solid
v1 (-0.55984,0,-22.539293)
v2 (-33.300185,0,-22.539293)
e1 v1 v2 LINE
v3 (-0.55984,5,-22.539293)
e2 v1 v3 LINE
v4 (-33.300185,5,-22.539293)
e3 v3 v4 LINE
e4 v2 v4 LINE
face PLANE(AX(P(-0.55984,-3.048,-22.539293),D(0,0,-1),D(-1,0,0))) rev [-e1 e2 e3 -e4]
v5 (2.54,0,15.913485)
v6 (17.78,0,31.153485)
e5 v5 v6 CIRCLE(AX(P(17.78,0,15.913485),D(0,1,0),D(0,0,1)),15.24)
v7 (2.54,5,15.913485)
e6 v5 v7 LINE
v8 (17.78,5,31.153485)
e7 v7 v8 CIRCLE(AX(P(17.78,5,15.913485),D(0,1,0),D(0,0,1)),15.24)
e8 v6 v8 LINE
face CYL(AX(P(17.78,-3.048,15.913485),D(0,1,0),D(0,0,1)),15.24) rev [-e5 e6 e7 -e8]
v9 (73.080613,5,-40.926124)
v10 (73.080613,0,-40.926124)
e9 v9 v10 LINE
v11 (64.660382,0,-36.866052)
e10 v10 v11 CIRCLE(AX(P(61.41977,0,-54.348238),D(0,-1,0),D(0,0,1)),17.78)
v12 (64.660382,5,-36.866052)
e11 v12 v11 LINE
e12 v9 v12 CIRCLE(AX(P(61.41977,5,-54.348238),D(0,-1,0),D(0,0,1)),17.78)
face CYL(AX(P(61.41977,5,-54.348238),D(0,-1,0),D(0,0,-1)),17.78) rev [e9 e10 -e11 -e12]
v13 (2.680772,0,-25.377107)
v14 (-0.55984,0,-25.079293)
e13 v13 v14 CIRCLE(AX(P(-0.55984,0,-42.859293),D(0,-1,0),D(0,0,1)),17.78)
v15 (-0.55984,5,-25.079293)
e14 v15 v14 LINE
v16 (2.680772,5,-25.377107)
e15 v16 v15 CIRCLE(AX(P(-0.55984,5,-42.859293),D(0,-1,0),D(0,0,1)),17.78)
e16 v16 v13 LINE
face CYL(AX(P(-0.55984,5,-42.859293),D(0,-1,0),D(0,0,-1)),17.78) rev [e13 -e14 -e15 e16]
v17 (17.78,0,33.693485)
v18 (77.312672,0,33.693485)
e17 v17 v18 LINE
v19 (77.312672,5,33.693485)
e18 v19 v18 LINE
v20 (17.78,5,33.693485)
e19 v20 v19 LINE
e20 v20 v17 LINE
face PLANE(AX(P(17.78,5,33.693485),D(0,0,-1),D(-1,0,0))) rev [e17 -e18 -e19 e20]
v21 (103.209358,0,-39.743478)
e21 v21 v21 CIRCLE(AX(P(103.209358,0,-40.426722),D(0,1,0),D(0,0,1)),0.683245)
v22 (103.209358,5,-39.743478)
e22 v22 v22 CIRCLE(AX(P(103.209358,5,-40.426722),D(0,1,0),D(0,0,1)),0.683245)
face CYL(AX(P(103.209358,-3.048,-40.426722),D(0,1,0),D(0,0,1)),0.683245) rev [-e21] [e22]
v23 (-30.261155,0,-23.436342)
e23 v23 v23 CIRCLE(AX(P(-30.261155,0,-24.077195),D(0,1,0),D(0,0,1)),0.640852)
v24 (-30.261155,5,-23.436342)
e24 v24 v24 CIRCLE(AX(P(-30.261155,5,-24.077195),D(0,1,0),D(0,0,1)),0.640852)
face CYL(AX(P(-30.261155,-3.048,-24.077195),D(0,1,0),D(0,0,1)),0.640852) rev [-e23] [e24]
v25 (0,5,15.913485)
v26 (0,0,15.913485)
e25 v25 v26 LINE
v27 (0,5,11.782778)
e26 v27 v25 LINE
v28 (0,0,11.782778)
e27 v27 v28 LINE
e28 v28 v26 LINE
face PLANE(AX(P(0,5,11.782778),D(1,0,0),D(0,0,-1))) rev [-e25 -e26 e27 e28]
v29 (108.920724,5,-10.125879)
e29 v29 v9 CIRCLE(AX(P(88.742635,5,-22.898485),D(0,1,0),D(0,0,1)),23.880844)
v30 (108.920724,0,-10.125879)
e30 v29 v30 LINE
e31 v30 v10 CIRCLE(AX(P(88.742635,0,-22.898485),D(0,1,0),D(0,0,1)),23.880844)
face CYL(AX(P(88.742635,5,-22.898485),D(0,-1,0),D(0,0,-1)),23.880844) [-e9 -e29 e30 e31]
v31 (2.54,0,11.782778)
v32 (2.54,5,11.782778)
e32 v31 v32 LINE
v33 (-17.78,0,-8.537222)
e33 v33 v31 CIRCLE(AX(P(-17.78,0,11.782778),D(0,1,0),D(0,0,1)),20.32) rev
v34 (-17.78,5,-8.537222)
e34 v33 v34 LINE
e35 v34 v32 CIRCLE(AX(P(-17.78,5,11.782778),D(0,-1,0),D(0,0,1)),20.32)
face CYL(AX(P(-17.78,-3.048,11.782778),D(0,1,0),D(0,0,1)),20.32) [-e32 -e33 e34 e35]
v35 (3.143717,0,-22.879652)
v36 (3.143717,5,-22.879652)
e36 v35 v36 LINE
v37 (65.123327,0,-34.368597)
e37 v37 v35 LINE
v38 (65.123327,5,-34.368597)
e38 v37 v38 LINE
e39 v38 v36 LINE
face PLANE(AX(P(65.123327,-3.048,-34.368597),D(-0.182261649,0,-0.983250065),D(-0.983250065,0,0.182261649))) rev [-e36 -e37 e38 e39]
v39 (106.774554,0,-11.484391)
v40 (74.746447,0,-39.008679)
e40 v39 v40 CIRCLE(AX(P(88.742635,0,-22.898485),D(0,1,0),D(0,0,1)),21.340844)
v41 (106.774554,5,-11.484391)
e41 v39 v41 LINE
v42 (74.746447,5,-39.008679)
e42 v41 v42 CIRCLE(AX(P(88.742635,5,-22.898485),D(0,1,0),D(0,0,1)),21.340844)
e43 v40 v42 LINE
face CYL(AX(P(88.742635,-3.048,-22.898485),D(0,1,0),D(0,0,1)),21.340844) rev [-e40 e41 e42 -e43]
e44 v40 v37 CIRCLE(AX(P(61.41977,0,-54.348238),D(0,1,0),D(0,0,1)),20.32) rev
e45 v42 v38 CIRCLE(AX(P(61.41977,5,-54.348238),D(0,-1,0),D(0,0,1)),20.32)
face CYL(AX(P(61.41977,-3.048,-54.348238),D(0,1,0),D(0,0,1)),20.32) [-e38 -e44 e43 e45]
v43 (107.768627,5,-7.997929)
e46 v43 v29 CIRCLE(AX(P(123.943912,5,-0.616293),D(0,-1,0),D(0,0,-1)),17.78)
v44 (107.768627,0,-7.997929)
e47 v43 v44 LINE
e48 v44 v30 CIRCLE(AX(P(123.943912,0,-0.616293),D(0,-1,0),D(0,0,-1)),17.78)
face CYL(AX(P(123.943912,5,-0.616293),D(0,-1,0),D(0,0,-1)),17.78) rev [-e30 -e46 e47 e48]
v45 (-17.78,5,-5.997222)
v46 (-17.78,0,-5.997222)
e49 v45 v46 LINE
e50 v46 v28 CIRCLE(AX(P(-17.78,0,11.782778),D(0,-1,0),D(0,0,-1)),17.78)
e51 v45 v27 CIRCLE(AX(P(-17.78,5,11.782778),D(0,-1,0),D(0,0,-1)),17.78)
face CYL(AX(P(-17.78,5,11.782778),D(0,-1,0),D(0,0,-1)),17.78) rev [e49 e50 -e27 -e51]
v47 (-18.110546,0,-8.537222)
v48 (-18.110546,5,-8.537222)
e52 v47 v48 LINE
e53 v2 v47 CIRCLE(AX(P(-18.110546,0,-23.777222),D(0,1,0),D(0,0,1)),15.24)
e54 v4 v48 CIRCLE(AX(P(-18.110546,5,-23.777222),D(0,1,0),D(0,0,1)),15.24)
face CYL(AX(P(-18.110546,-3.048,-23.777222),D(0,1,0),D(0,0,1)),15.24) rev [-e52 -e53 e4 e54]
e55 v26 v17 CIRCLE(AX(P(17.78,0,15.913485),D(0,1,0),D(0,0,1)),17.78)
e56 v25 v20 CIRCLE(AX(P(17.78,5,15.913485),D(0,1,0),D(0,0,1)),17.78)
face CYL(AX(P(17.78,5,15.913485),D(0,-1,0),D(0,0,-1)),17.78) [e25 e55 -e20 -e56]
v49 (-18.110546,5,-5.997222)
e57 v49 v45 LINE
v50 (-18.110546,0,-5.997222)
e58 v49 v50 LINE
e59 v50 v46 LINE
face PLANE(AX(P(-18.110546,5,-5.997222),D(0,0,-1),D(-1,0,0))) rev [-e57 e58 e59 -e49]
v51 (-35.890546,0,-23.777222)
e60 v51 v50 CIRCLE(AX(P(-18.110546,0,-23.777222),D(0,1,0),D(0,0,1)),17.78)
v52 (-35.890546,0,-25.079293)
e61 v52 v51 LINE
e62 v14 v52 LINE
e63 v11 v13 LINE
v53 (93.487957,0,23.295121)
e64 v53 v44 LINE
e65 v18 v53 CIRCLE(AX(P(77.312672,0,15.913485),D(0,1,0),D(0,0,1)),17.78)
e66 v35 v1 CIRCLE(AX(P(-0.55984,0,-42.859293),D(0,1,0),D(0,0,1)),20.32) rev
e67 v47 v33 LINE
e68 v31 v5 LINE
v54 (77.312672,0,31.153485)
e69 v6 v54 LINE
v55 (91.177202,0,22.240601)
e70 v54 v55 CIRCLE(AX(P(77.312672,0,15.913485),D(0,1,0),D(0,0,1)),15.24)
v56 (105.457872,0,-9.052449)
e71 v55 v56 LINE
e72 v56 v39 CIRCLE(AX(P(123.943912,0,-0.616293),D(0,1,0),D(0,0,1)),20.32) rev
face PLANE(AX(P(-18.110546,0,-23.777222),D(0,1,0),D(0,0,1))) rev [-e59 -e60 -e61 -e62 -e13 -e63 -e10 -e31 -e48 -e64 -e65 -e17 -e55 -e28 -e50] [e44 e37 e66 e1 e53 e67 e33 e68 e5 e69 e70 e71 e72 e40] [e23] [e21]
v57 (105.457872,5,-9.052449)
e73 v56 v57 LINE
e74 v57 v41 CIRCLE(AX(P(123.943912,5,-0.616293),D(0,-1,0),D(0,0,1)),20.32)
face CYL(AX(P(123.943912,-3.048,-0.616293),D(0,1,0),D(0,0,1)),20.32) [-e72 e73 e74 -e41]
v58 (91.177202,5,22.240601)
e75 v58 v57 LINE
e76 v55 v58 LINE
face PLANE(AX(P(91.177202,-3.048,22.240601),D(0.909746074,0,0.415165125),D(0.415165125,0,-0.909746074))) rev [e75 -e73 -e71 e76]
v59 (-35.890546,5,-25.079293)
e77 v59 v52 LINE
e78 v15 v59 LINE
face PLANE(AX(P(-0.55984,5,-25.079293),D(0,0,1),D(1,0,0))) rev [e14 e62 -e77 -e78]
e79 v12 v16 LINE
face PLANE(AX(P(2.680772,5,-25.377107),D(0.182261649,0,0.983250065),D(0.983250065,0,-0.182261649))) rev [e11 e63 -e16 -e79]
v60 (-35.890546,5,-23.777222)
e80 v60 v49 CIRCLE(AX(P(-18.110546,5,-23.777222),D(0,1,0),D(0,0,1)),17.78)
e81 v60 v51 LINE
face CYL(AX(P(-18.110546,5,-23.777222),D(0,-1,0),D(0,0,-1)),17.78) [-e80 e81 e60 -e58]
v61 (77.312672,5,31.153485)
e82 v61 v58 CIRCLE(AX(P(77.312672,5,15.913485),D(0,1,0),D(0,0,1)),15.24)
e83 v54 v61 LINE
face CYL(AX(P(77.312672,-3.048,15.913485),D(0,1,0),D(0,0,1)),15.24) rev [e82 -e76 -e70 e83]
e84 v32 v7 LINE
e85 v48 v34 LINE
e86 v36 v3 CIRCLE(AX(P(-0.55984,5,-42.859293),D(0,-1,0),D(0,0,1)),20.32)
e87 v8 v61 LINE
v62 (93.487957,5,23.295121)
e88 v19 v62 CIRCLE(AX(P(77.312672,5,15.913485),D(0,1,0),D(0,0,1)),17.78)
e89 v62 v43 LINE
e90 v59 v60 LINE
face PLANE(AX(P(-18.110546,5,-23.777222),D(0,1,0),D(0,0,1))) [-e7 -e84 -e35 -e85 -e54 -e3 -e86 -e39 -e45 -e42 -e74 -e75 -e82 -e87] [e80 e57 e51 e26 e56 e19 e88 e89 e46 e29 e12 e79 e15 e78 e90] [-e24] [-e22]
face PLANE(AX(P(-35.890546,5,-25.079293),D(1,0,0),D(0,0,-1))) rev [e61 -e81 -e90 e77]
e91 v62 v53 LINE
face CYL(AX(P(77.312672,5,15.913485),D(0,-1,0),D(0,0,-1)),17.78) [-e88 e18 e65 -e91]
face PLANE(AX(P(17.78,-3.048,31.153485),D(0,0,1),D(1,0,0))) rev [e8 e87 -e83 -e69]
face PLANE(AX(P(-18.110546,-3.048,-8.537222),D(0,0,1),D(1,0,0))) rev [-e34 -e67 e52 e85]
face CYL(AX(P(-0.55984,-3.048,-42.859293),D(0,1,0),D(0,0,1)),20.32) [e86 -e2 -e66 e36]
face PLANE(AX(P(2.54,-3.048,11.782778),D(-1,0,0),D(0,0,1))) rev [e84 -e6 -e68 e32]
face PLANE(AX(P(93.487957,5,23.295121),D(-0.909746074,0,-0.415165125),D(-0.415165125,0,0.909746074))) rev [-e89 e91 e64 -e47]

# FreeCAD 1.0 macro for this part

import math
import FreeCAD as App
import Part
import Sketcher
from FreeCAD import Vector
Q = App.Units.Quantity

doc = App.newDocument("Part")
params = doc.addObject("Spreadsheet::Sheet", "Params")
for row, (alias, value) in enumerate([
    ("sketch1_radius", "0.7 in"),
    ("pad1_length", "5 mm"),
    ("sketch2_radius", "0.8 in"),
    ("sketch2_radius2", "0.6 in"),
    ("sketch2_radius3", "0.6 in"),
    ("sketch2_radius4", "0.8 in"),
    ("sketch2_radius5", "0.8 in"),
    ("pocket1_length", "8.048 mm"),
    ("pocket2_length", "8.048 mm"),
], start=1):
    params.set(f"A{row}", alias)
    params.set(f"B{row}", "=" + value)
    params.setAlias(f"B{row}", alias)

body = doc.addObject("PartDesign::Body", "Body")

# Sketch on XZ plane
sketch1 = body.newObject("Sketcher::SketchObject", "Sketch")
sketch1.AttachmentSupport = (doc.getObject("XZ_Plane"), [""])
sketch1.MapMode = "FlatFace"
sketch1.addGeometry([
    Part.LineSegment(Vector(-0.56, -25.08, 0), Vector(-35.89, -25.08, 0)),  # 0
    Part.LineSegment(Vector(-35.89, -25.08, 0), Vector(-35.89, -23.78, 0)),  # 1
    Part.ArcOfCircle(Part.Circle(Vector(-18.11, -23.78, 0), Vector(0, 0, 1), 17.78), math.radians(90), math.radians(180)),  # 2
    Part.LineSegment(Vector(-18.11, -6, 0), Vector(-17.78, -6, 0)),  # 3
    Part.ArcOfCircle(Part.Circle(Vector(-17.78, 11.78, 0), Vector(0, 0, 1), 17.78), math.radians(-90), math.radians(0)),  # 4
    Part.LineSegment(Vector(0, 11.78, 0), Vector(0, 15.91, 0)),  # 5
    Part.ArcOfCircle(Part.Circle(Vector(17.78, 15.91, 0), Vector(0, 0, 1), 17.78), math.radians(90), math.radians(180)),  # 6
    Part.LineSegment(Vector(17.78, 33.69, 0), Vector(77.31, 33.69, 0)),  # 7
    Part.ArcOfCircle(Part.Circle(Vector(77.31, 15.91, 0), Vector(0, 0, 1), 17.78), math.radians(25), math.radians(90)),  # 8
    Part.LineSegment(Vector(93.49, 23.3, 0), Vector(107.77, -8, 0)),  # 9
    Part.ArcOfCircle(Part.Circle(Vector(123.94, -0.62, 0), Vector(0, 0, 1), 17.78), math.radians(-155.47), math.radians(-147.67)),  # 10
    Part.ArcOfCircle(Part.Circle(Vector(88.74, -22.9, 0), Vector(0, 0, 1), 23.88), math.radians(-131), math.radians(32)),  # 11
    Part.ArcOfCircle(Part.Circle(Vector(61.42, -54.35, 0), Vector(0, 0, 1), 17.78), math.radians(49), math.radians(79)),  # 12
    Part.LineSegment(Vector(64.66, -36.87, 0), Vector(2.68, -25.38, 0)),  # 13
    Part.ArcOfCircle(Part.Circle(Vector(-0.56, -42.86, 0), Vector(0, 0, 1), 17.78), math.radians(79.5), math.radians(90)),  # 14
], False)
sketch1.addConstraint([
    Sketcher.Constraint("Coincident", 0, 2, 1, 1),
    Sketcher.Constraint("Tangent", 1, 2, 2, 2),
    Sketcher.Constraint("Tangent", 2, 1, 3, 1),
    Sketcher.Constraint("Tangent", 3, 2, 4, 1),
    Sketcher.Constraint("Tangent", 4, 2, 5, 1),
    Sketcher.Constraint("Tangent", 5, 2, 6, 2),
    Sketcher.Constraint("Tangent", 6, 1, 7, 1),
    Sketcher.Constraint("Tangent", 7, 2, 8, 2),
    Sketcher.Constraint("Tangent", 8, 1, 9, 1),
    Sketcher.Constraint("Tangent", 9, 2, 10, 1),
    Sketcher.Constraint("Tangent", 10, 2, 11, 2),
    Sketcher.Constraint("Tangent", 11, 1, 12, 1),
    Sketcher.Constraint("Tangent", 12, 2, 13, 1),
    Sketcher.Constraint("Tangent", 13, 2, 14, 1),
    Sketcher.Constraint("Tangent", 14, 2, 0, 1),
    Sketcher.Constraint("Horizontal", 0),
    Sketcher.Constraint("Vertical", 1),
    Sketcher.Constraint("Horizontal", 3),
    Sketcher.Constraint("Vertical", 5),
    Sketcher.Constraint("Horizontal", 7),
    Sketcher.Constraint("Equal", 2, 4),
    Sketcher.Constraint("Equal", 4, 6),
    Sketcher.Constraint("Equal", 6, 8),
    Sketcher.Constraint("Equal", 8, 10),
    Sketcher.Constraint("Equal", 10, 12),
    Sketcher.Constraint("Equal", 12, 14),
    Sketcher.Constraint("PointOnObject", 4, 2, -2),
    Sketcher.Constraint("Radius", 2, Q("0.7 in")),
    Sketcher.Constraint("Radius", 11, 23.880844),
    Sketcher.Constraint("DistanceY", 1, 1, 1, 2, 1.302071),
    Sketcher.Constraint("DistanceY", 10, 2, 8, 1, 33.421),
    Sketcher.Constraint("Distance", 13, 63.03545),
    Sketcher.Constraint("DistanceX", 0, 2, 0, 1, 35.330706),
    Sketcher.Constraint("DistanceX", 3, 1, 3, 2, 0.330546),
    Sketcher.Constraint("DistanceX", 7, 1, 7, 2, 59.532672),
    Sketcher.Constraint("DistanceY", 5, 1, 5, 2, 4.130707),
    Sketcher.Constraint("DistanceX", -1, 1, 12, 3, 61.41977),
    Sketcher.Constraint("DistanceY", -1, 1, 8, 1, 23.295121),
    Sketcher.Constraint("DistanceY", 9, 2, -1, 1, 7.997929),
])
sketch1.setExpression("Constraints[27]", "Params.sketch1_radius")
pad1 = body.newObject("PartDesign::Pad", "Pad")
pad1.Profile = sketch1
pad1.setExpression("Length", "Params.pad1_length")
pad1.Reversed = True

# Sketch on XZ plane
sketch2 = body.newObject("Sketcher::SketchObject", "Sketch001")
sketch2.AttachmentSupport = (doc.getObject("XZ_Plane"), [""])
sketch2.MapMode = "FlatFace"
sketch2.AttachmentOffset = App.Placement(Vector(0, 0, -5), App.Rotation())
sketch2.addGeometry([
    Part.LineSegment(Vector(-18.110546, -8.537222, 0), Vector(-17.78, -8.537222, 0)),  # 0
    Part.ArcOfCircle(Part.Circle(Vector(-17.78, 11.782778, 0), Vector(0, 0, 1), 20.32), math.radians(-90), math.radians(0)),  # 1
    Part.LineSegment(Vector(2.54, 11.782778, 0), Vector(2.54, 15.913485, 0)),  # 2
    Part.ArcOfCircle(Part.Circle(Vector(17.78, 15.913485, 0), Vector(0, 0, 1), 15.24), math.radians(90), math.radians(180)),  # 3
    Part.LineSegment(Vector(17.78, 31.153485, 0), Vector(77.312672, 31.153485, 0)),  # 4
    Part.ArcOfCircle(Part.Circle(Vector(77.312672, 15.913485, 0), Vector(0, 0, 1), 15.24), math.radians(24.529716), math.radians(90)),  # 5
    Part.LineSegment(Vector(91.177202, 22.240601, 0), Vector(105.457872, -9.052449, 0)),  # 6
    Part.ArcOfCircle(Part.Circle(Vector(123.943912, -0.616293, 0), Vector(0, 0, 1), 20.32), math.radians(-155.470284), math.radians(-147.666441)),  # 7
    Part.ArcOfCircle(Part.Circle(Vector(88.742635, -22.898485, 0), Vector(0, 0, 1), 21.340844), math.radians(-130.983405), math.radians(32.333559)),  # 8
    Part.ArcOfCircle(Part.Circle(Vector(61.41977, -54.348238, 0), Vector(0, 0, 1), 20.32), math.radians(49.016595), math.radians(79.498478)),  # 9
    Part.LineSegment(Vector(65.123327, -34.368597, 0), Vector(3.143717, -22.879652, 0)),  # 10
    Part.ArcOfCircle(Part.Circle(Vector(-0.55984, -42.859293, 0), Vector(0, 0, 1), 20.32), math.radians(79.498478), math.radians(90)),  # 11
    Part.LineSegment(Vector(-0.55984, -22.539293, 0), Vector(-33.300185, -22.539293, 0)),  # 12
    Part.ArcOfCircle(Part.Circle(Vector(-18.110546, -23.777222, 0), Vector(0, 0, 1), 15.24), math.radians(90), math.radians(175.34079)),  # 13
], False)
sketch2.addConstraint([
    Sketcher.Constraint("Coincident", 0, 2, 1, 1),
    Sketcher.Constraint("Coincident", 1, 2, 2, 1),
    Sketcher.Constraint("Coincident", 2, 2, 3, 2),
    Sketcher.Constraint("Coincident", 3, 1, 4, 1),
    Sketcher.Constraint("Coincident", 4, 2, 5, 2),
    Sketcher.Constraint("Coincident", 5, 1, 6, 1),
    Sketcher.Constraint("Coincident", 6, 2, 7, 1),
    Sketcher.Constraint("Coincident", 7, 2, 8, 2),
    Sketcher.Constraint("Coincident", 8, 1, 9, 1),
    Sketcher.Constraint("Coincident", 9, 2, 10, 1),
    Sketcher.Constraint("Coincident", 10, 2, 11, 1),
    Sketcher.Constraint("Coincident", 11, 2, 12, 1),
    Sketcher.Constraint("Coincident", 12, 2, 13, 2),
    Sketcher.Constraint("Coincident", 13, 1, 0, 1),
    Sketcher.Constraint("Horizontal", 0),
    Sketcher.Constraint("Vertical", 2),
    Sketcher.Constraint("Horizontal", 4),
    Sketcher.Constraint("Horizontal", 12),
    Sketcher.Constraint("Radius", 1, Q("0.8 in")),
    Sketcher.Constraint("Radius", 3, Q("0.6 in")),
    Sketcher.Constraint("Radius", 5, Q("0.6 in")),
    Sketcher.Constraint("Radius", 7, Q("0.8 in")),
    Sketcher.Constraint("Radius", 9, Q("0.8 in")),
    Sketcher.Constraint("Radius", 11, Q("0.8 in")),
    Sketcher.Constraint("Radius", 13, Q("0.6 in")),
    Sketcher.Constraint("DistanceX", 1, 3, -1, 1, Q("0.7 in")),
    Sketcher.Constraint("DistanceX", 0, 2, -1, 1, Q("0.7 in")),
    Sketcher.Constraint("DistanceX", -1, 1, 3, 1, Q("0.7 in")),
    Sketcher.Constraint("DistanceY", 0, 2, 1, 2, Q("0.8 in")),
    Sketcher.Constraint("DistanceY", 2, 2, 3, 1, Q("0.6 in")),
    Sketcher.Constraint("Radius", 8, 21.340844),
    Sketcher.Constraint("DistanceY", 9, 3, 9, 2, Q("0.7866001 in")),
    Sketcher.Constraint("DistanceY", 11, 3, 10, 2, Q("0.7866001 in")),
    Sketcher.Constraint("DistanceY", -1, 1, 5, 1, 22.240601),
    Sketcher.Constraint("DistanceX", 5, 3, 6, 2, 28.1452),
    Sketcher.Constraint("DistanceX", 4, 2, 6, 2, 28.1452),
    Sketcher.Constraint("DistanceX", 12, 2, 10, 2, 36.443902),
    Sketcher.Constraint("Distance", 10, 63.03545),
    Sketcher.Constraint("DistanceX", 0, 1, 0, 2, 0.330546),
    Sketcher.Constraint("DistanceX", 4, 1, 4, 2, 59.532672),
    Sketcher.Constraint("DistanceX", 12, 2, 12, 1, 32.740345),
    Sketcher.Constraint("DistanceY", 2, 1, 2, 2, 4.130707),
    Sketcher.Constraint("DistanceX", -1, 1, 9, 3, 61.41977),
    Sketcher.Constraint("DistanceX", 11, 3, -1, 1, 0.55984),
    Sketcher.Constraint("DistanceY", 6, 2, -1, 1, 9.052449),
    Sketcher.Constraint("DistanceY", 7, 2, -1, 1, 11.484391),
    Sketcher.Constraint("DistanceY", 8, 1, -1, 1, 39.008679),
    Sketcher.Constraint("DistanceY", 10, 2, -1, 1, 22.879652),
    Sketcher.Constraint("DistanceX", 5, 3, 7, 3, 46.63124),
    Sketcher.Constraint("DistanceY", 7, 3, 5, 3, 16.529778),
])
sketch2.setExpression("Constraints[18]", "Params.sketch2_radius")
sketch2.setExpression("Constraints[19]", "Params.sketch2_radius2")
sketch2.setExpression("Constraints[20]", "Params.sketch2_radius3")
sketch2.setExpression("Constraints[21]", "Params.sketch2_radius4")
sketch2.setExpression("Constraints[22]", "Params.sketch2_radius5")
pocket1 = body.newObject("PartDesign::Pocket", "Pocket")
pocket1.Profile = sketch2
pocket1.setExpression("Length", "Params.pocket1_length")
pocket1.Reversed = True

# Sketch on XZ plane
sketch3 = body.newObject("Sketcher::SketchObject", "Sketch002")
sketch3.AttachmentSupport = (doc.getObject("XZ_Plane"), [""])
sketch3.MapMode = "FlatFace"
sketch3.AttachmentOffset = App.Placement(Vector(0, 0, -5), App.Rotation())
sketch3.addGeometry([
    Part.Circle(Vector(-30.3, -24.1, 0), Vector(0, 0, 1), 0.6),
    Part.Circle(Vector(103.2, -40.4, 0), Vector(0, 0, 1), 0.7),
], False)
sketch3.addConstraint([
    Sketcher.Constraint("Diameter", 1, 1.36649),
    Sketcher.Constraint("Diameter", 0, 1.281705),
    Sketcher.Constraint("DistanceX", 0, 3, -1, 1, 30.261155),
    Sketcher.Constraint("DistanceY", 0, 3, -1, 1, 24.077195),
    Sketcher.Constraint("DistanceX", -1, 1, 1, 3, 103.209358),
    Sketcher.Constraint("DistanceY", 1, 3, -1, 1, 40.426722),
])
pocket2 = body.newObject("PartDesign::Pocket", "Pocket001")
pocket2.Profile = sketch3
pocket2.setExpression("Length", "Params.pocket2_length")
pocket2.Reversed = True

doc.recompute()
